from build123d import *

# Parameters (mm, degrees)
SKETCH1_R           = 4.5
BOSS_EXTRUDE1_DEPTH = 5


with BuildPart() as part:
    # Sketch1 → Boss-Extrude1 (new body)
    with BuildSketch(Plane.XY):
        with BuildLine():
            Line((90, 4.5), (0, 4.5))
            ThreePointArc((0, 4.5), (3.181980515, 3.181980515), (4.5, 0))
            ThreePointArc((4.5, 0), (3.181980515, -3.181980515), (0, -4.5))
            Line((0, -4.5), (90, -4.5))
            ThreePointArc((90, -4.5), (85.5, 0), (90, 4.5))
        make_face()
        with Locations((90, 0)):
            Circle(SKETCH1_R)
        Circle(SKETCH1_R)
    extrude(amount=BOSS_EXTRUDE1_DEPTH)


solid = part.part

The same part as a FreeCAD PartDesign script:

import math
import FreeCAD as App
import Part
import Sketcher
Q = App.Units.Quantity

doc = App.newDocument("Part")
body = doc.addObject("PartDesign::Body", "Body")

sketch1 = body.newObject("Sketcher::SketchObject", "Sketch")
sketch1.AttachmentSupport = (doc.getObject("XY_Plane"), [""])
sketch1.MapMode = "FlatFace"
sketch1.addGeometry(Part.LineSegment(App.Vector(90, 4.5, 0), App.Vector(0, 4.5, 0)), False)
sketch1.addGeometry(Part.ArcOfCircle(Part.Circle(App.Vector(0, 0, 0), App.Vector(0, 0, 1), 4.5), math.radians(90), math.radians(270)), False)
sketch1.addGeometry(Part.LineSegment(App.Vector(0, -4.5, 0), App.Vector(90, -4.5, 0)), False)
sketch1.addGeometry(Part.ArcOfCircle(Part.Circle(App.Vector(90, 0, 0), App.Vector(0, 0, 1), 4.5), math.radians(-90), math.radians(90)), False)
sketch1.addConstraint(Sketcher.Constraint("Tangent", 0, 2, 1, 1))
sketch1.addConstraint(Sketcher.Constraint("Tangent", 1, 2, 2, 1))
sketch1.addConstraint(Sketcher.Constraint("Tangent", 2, 2, 3, 1))
sketch1.addConstraint(Sketcher.Constraint("Tangent", 3, 2, 0, 1))
sketch1.addConstraint(Sketcher.Constraint("Horizontal", 0))
sketch1.addConstraint(Sketcher.Constraint("Horizontal", 2))
sketch1.addConstraint(Sketcher.Constraint("Coincident", 1, 3, -1, 1))
sketch1.addConstraint(Sketcher.Constraint("Radius", 1, Q("4.5 mm")))
sketch1.addConstraint(Sketcher.Constraint("DistanceX", 0, 2, 0, 1, Q("90 mm")))
pad1 = body.newObject("PartDesign::Pad", "Pad")
pad1.Profile = sketch1
pad1.Length = 5

doc.recompute()
